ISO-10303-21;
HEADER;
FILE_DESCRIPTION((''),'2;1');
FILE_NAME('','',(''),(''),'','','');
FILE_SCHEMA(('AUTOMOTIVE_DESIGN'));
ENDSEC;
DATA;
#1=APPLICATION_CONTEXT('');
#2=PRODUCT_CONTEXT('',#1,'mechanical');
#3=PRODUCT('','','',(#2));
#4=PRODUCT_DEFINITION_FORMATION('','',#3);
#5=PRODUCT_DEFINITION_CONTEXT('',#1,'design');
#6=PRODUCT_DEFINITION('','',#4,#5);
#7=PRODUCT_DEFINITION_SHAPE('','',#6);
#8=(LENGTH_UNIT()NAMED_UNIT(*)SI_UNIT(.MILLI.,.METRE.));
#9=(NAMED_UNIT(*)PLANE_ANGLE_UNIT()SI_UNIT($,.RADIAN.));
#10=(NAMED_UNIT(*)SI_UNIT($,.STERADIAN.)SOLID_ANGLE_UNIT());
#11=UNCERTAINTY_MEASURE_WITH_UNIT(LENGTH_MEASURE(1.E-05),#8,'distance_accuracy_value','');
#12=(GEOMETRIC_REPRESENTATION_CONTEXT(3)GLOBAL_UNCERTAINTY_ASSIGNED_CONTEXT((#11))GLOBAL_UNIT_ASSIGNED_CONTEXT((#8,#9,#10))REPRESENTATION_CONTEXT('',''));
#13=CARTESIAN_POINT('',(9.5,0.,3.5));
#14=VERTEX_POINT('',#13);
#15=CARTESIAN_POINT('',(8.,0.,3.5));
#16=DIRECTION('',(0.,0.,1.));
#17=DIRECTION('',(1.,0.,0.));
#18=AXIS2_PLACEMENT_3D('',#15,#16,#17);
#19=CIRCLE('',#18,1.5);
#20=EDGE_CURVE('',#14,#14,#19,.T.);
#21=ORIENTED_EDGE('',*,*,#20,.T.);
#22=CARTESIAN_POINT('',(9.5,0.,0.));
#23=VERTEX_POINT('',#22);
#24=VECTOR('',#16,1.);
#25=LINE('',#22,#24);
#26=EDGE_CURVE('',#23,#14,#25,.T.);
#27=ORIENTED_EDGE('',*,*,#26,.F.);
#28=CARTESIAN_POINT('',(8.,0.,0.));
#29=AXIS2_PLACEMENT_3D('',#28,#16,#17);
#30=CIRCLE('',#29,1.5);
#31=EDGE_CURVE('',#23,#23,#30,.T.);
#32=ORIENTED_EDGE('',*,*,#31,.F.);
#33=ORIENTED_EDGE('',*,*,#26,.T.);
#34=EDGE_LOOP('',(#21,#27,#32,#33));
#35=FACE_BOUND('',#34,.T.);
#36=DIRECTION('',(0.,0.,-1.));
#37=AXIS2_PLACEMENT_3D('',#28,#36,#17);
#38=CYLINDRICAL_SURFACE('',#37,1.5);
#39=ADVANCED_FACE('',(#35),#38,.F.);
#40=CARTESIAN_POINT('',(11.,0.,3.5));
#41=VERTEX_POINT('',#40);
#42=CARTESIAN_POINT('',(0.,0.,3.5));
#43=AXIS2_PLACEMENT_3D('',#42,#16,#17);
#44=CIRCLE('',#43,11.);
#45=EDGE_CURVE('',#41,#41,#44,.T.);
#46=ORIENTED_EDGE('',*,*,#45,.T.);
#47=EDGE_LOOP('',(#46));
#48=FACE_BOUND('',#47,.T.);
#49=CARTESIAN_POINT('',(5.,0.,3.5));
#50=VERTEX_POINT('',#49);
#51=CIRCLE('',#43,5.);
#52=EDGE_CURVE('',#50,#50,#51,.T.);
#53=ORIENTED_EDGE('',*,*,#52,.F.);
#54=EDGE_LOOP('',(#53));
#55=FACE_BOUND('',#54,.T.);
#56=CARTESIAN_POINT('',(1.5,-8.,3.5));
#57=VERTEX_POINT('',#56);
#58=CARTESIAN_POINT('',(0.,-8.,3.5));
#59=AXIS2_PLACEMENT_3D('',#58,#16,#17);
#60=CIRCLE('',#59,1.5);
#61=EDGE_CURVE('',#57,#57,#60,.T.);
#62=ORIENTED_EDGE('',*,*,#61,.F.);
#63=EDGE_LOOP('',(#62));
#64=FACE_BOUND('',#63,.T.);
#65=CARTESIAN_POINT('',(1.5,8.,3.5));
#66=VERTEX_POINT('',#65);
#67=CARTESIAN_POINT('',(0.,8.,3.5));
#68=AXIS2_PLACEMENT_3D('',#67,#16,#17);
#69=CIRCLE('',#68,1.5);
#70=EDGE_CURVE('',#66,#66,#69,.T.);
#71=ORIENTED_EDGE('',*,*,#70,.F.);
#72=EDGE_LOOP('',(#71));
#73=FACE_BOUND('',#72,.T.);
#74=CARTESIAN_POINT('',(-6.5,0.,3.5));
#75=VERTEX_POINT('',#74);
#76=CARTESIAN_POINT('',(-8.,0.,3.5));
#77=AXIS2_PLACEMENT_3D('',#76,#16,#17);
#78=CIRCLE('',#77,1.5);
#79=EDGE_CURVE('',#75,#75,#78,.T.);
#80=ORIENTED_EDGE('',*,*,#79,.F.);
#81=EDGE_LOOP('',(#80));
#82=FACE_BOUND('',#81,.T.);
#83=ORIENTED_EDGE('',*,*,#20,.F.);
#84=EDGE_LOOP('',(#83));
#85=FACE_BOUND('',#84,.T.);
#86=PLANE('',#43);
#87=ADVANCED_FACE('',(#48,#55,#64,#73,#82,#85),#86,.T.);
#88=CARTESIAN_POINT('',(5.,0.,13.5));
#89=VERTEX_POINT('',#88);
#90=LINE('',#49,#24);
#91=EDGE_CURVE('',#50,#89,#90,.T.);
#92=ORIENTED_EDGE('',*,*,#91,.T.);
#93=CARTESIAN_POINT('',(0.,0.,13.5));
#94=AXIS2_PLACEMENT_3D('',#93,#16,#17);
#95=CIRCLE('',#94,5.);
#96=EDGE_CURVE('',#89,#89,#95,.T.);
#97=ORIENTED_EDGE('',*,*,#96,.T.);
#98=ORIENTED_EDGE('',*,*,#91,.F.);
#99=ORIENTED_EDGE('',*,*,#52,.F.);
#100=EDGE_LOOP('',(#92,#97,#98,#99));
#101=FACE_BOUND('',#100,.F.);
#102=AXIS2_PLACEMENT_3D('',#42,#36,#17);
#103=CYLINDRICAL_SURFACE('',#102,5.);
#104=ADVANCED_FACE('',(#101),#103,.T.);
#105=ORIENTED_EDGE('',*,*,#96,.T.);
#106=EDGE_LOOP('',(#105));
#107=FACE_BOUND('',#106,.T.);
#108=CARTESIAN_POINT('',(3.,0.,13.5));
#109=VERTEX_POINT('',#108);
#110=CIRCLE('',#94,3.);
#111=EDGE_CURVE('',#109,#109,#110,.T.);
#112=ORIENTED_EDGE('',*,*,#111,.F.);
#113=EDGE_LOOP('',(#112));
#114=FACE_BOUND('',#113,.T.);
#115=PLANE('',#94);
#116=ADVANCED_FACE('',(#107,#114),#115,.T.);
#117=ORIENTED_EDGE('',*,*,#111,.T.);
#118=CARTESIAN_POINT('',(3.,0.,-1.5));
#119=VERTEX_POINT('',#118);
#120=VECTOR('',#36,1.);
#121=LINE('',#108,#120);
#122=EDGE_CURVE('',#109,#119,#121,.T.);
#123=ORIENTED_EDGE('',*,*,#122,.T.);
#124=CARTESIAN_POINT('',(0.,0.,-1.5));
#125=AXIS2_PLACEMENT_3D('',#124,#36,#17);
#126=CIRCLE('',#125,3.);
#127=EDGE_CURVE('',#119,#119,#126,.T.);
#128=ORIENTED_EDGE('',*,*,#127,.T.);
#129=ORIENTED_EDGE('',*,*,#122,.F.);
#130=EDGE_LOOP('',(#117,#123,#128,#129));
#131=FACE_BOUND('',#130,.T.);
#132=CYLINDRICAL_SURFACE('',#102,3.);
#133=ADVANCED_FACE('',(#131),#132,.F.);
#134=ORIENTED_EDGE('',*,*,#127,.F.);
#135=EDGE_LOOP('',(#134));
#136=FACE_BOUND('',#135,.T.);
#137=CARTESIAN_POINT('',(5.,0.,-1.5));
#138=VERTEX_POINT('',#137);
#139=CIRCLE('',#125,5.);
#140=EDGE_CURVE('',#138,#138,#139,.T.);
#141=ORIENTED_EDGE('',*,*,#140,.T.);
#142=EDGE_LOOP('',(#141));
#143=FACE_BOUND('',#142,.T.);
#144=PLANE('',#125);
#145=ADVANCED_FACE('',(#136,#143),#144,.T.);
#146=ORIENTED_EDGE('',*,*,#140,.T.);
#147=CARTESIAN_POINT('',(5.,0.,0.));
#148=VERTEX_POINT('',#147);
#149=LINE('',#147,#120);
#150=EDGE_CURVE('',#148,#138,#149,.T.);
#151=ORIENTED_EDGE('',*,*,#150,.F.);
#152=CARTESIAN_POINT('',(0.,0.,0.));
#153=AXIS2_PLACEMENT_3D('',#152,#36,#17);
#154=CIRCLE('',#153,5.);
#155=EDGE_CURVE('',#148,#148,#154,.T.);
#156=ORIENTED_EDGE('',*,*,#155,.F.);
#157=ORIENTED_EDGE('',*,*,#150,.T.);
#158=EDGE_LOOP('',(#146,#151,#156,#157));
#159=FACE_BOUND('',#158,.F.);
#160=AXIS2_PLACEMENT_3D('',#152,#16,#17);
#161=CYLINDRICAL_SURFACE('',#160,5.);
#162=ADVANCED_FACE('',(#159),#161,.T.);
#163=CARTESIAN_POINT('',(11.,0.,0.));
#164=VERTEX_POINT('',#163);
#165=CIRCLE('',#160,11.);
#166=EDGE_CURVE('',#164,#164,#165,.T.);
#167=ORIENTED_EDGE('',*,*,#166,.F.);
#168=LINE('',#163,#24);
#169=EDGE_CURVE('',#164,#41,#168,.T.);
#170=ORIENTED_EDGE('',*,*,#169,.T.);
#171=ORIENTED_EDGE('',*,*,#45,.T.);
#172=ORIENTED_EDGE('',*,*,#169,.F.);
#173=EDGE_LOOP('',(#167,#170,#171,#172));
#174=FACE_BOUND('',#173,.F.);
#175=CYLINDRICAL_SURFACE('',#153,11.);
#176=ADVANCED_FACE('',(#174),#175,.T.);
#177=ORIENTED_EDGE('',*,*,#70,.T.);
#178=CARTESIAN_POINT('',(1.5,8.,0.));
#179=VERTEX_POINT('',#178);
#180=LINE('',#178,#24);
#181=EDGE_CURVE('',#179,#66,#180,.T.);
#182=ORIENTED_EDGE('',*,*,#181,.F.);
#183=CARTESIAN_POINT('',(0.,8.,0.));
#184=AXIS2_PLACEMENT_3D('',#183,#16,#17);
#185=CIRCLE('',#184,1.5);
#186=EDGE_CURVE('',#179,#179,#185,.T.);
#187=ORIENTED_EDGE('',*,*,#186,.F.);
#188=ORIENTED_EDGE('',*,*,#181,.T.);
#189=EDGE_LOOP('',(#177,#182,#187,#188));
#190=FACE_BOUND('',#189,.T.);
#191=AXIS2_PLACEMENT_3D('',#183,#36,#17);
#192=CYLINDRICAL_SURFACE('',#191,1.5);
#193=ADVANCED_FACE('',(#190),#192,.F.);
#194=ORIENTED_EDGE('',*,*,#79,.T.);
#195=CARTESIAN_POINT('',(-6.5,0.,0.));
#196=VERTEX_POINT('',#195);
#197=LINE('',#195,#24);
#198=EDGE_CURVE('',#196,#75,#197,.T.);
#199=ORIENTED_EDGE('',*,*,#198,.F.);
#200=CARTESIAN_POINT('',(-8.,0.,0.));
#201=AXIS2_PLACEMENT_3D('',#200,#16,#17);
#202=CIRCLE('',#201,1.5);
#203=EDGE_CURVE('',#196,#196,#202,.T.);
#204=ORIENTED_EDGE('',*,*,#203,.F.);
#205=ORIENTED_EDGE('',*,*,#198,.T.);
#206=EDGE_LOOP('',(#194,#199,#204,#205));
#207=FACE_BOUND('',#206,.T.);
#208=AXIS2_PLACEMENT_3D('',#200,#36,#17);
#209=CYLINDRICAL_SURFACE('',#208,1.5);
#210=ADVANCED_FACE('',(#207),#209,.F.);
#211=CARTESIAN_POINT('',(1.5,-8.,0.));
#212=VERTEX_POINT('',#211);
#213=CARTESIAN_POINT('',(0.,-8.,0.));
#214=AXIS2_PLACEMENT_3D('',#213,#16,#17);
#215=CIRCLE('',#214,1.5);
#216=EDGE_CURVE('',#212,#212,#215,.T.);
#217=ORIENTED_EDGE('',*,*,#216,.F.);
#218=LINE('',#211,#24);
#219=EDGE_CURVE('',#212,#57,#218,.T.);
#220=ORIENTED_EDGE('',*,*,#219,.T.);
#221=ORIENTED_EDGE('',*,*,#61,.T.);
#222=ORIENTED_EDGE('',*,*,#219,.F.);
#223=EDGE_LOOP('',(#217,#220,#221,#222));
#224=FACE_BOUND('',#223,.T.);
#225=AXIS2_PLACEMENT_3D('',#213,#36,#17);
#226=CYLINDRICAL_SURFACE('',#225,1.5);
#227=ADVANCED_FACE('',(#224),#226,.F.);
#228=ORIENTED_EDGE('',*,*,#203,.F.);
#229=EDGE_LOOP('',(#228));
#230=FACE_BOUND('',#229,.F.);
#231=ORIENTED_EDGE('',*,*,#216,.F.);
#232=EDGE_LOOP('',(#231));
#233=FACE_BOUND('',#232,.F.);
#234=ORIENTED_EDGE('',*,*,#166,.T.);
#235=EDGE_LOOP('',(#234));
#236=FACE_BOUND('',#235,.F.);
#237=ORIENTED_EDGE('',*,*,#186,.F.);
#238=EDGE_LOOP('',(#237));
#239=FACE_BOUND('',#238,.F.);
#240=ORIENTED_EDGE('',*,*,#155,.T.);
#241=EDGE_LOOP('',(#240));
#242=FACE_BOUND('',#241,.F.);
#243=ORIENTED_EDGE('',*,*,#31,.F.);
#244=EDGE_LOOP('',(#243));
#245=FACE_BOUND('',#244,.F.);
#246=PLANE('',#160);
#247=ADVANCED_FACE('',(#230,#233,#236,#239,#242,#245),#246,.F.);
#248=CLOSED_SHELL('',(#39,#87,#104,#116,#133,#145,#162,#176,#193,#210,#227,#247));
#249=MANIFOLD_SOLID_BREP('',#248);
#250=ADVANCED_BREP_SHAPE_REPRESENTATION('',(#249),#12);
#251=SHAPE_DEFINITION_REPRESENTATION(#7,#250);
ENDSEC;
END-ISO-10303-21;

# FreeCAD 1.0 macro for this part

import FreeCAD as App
import Part
import Sketcher
from FreeCAD import Vector

doc = App.newDocument("Part")
body = doc.addObject("PartDesign::Body", "Body")

# Sketch on XY plane
sketch1 = body.newObject("Sketcher::SketchObject", "Sketch")
sketch1.AttachmentSupport = (doc.getObject("XY_Plane"), [""])
sketch1.MapMode = "FlatFace"
sketch1.addGeometry([
    Part.Circle(Vector(0, 0, 0), Vector(0, 0, 1), 11),  # 0
    Part.Circle(Vector(0, -8, 0), Vector(0, 0, 1), 1.5),  # 1
    Part.Circle(Vector(-8, 0, 0), Vector(0, 0, 1), 1.5),  # 2
    Part.Circle(Vector(0, 0, 0), Vector(0, 0, 1), 3),  # 3
    Part.Circle(Vector(8, 0, 0), Vector(0, 0, 1), 1.5),  # 4
    Part.Circle(Vector(0, 8, 0), Vector(0, 0, 1), 1.5),  # 5
], False)
sketch1.addConstraint([
    Sketcher.Constraint("Coincident", 0, 3, -1, 1),
    Sketcher.Constraint("Coincident", 3, 3, -1, 1),
    Sketcher.Constraint("Equal", 1, 2),
    Sketcher.Constraint("Equal", 2, 4),
    Sketcher.Constraint("Equal", 4, 5),
    Sketcher.Constraint("Symmetric", 2, 3, 4, 3, -1, 1),
    Sketcher.Constraint("Symmetric", 1, 3, 5, 3, -1, 1),
    Sketcher.Constraint("PointOnObject", 1, 3, -2),
    Sketcher.Constraint("PointOnObject", 2, 3, -1),
    Sketcher.Constraint("Diameter", 0, 22.0),
    Sketcher.Constraint("Diameter", 1, 3.0),
    Sketcher.Constraint("Diameter", 3, 6.0),
    Sketcher.Constraint("DistanceY", 1, 3, -1, 1, 8.0),
    Sketcher.Constraint("DistanceX", 2, 3, -1, 1, 8.0),
])
pad1 = body.newObject("PartDesign::Pad", "Pad")
pad1.Profile = sketch1
pad1.Length = 3.5

# Sketch on XY plane
sketch2 = body.newObject("Sketcher::SketchObject", "Sketch001")
sketch2.AttachmentSupport = (doc.getObject("XY_Plane"), [""])
sketch2.MapMode = "FlatFace"
sketch2.addGeometry([
    Part.Circle(Vector(0, 0, 0), Vector(0, 0, 1), 5),
    Part.Circle(Vector(0, 0, 0), Vector(0, 0, 1), 3),
], False)
sketch2.addConstraint([
    Sketcher.Constraint("Coincident", 0, 3, -1, 1),
    Sketcher.Constraint("Coincident", 1, 3, -1, 1),
    Sketcher.Constraint("Diameter", 0, 10.0),
    Sketcher.Constraint("Diameter", 1, 6.0),
])
pad2 = body.newObject("PartDesign::Pad", "Pad001")
pad2.Profile = sketch2
pad2.Length = 1.5
pad2.Reversed = True

# Sketch on XY plane
sketch3 = body.newObject("Sketcher::SketchObject", "Sketch002")
sketch3.AttachmentSupport = (doc.getObject("XY_Plane"), [""])
sketch3.MapMode = "FlatFace"
sketch3.AttachmentOffset = App.Placement(Vector(0, 0, 3.5), App.Rotation())
sketch3.addGeometry([
    Part.Circle(Vector(0, 0, 0), Vector(0, 0, 1), 5),
    Part.Circle(Vector(0, 0, 0), Vector(0, 0, 1), 3),
], False)
sketch3.addConstraint([
    Sketcher.Constraint("Coincident", 0, 3, -1, 1),
    Sketcher.Constraint("Coincident", 1, 3, -1, 1),
    Sketcher.Constraint("Diameter", 0, 10.0),
    Sketcher.Constraint("Diameter", 1, 6.0),
])
pad3 = body.newObject("PartDesign::Pad", "Pad002")
pad3.Profile = sketch3
pad3.Length = 10

doc.recompute()
